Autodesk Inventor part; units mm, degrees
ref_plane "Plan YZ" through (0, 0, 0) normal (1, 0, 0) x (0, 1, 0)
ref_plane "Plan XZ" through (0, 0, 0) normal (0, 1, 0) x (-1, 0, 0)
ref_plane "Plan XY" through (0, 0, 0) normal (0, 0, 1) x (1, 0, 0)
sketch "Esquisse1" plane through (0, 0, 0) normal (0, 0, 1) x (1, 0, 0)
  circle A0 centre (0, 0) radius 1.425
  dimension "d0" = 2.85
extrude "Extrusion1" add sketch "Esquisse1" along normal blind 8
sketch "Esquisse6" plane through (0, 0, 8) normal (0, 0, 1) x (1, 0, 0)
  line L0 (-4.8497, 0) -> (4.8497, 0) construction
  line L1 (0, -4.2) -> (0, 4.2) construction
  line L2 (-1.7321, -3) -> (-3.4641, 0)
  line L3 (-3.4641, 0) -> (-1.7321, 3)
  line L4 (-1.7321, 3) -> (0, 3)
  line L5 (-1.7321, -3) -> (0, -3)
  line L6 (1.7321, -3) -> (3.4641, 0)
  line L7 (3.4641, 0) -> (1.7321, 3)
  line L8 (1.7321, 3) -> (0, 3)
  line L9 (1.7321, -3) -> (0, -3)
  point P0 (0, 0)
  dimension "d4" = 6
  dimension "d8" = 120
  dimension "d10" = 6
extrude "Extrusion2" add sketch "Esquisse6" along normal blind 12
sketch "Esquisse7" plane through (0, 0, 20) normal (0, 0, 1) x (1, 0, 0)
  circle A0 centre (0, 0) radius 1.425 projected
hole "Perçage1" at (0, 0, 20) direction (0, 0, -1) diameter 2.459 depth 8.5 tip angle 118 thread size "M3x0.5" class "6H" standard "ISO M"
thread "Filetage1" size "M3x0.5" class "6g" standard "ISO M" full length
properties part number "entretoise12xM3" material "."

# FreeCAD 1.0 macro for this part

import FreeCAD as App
import Part
import Sketcher
from FreeCAD import Vector
Q = App.Units.Quantity

doc = App.newDocument("Part")
body = doc.addObject("PartDesign::Body", "Body")

sketch1 = body.newObject("Sketcher::SketchObject", "Sketch")
sketch1.AttachmentSupport = (doc.getObject("XY_Plane"), [""])
sketch1.MapMode = "FlatFace"
sketch1.addGeometry(Part.Circle(Vector(0, 0, 0), Vector(0, 0, 1), 1.4), False)
sketch1.addConstraint([
    Sketcher.Constraint("Coincident", 0, 3, -1, 1),
    Sketcher.Constraint("Diameter", 0, 2.85),
])
pad1 = body.newObject("PartDesign::Pad", "Pad")
pad1.Profile = sketch1
pad1.Length = 8

sketch2 = body.newObject("Sketcher::SketchObject", "Sketch001")
sketch2.AttachmentSupport = (doc.getObject("XY_Plane"), [""])
sketch2.MapMode = "FlatFace"
sketch2.AttachmentOffset = App.Placement(Vector(0, 0, 8), App.Rotation())
sketch2.addGeometry([
    Part.LineSegment(Vector(-3.5, 0, 0), Vector(-1.7, -3, 0)),
    Part.LineSegment(Vector(-1.7, -3, 0), Vector(1.7, -3, 0)),
    Part.LineSegment(Vector(1.7, -3, 0), Vector(3.5, 0, 0)),
    Part.LineSegment(Vector(3.5, 0, 0), Vector(1.7, 3, 0)),
    Part.LineSegment(Vector(1.7, 3, 0), Vector(-1.7, 3, 0)),
    Part.LineSegment(Vector(-1.7, 3, 0), Vector(-3.5, 0, 0)),
], False)
sketch2.addConstraint([
    Sketcher.Constraint("Coincident", 0, 2, 1, 1),
    Sketcher.Constraint("Coincident", 1, 2, 2, 1),
    Sketcher.Constraint("Coincident", 2, 2, 3, 1),
    Sketcher.Constraint("Coincident", 3, 2, 4, 1),
    Sketcher.Constraint("Coincident", 4, 2, 5, 1),
    Sketcher.Constraint("Coincident", 5, 2, 0, 1),
    Sketcher.Constraint("Horizontal", 1),
    Sketcher.Constraint("Horizontal", 4),
    Sketcher.Constraint("Symmetric", 0, 2, 3, 2, -1, 1),
    Sketcher.Constraint("Symmetric", 2, 2, 5, 2, -1, 1),
    Sketcher.Constraint("PointOnObject", 2, 2, -1),
    Sketcher.Constraint("Parallel", 2, 5),
    Sketcher.Constraint("Vertical", 1, 2, 3, 2),
    Sketcher.Constraint("DistanceY", 1, 2, 3, 2, 6.0),
    Sketcher.Constraint("Angle", 0, Q("-60.0007 deg")),
    Sketcher.Constraint("DistanceX", 1, 1, 1, 2, 3.4642),
])
pad2 = body.newObject("PartDesign::Pad", "Pad001")
pad2.Profile = sketch2
pad2.Length = 12

sketch3 = body.newObject("Sketcher::SketchObject", "Sketch002")
sketch3.AttachmentSupport = (doc.getObject("XY_Plane"), [""])
sketch3.MapMode = "FlatFace"
sketch3.AttachmentOffset = App.Placement(Vector(0, 0, 20), App.Rotation())
sketch3.addGeometry(Part.Circle(Vector(0, 0, 0), Vector(0, 0, 1), 1.2), False)
sketch3.addConstraint([
    Sketcher.Constraint("Coincident", 0, 3, -1, 1),
    Sketcher.Constraint("Diameter", 0, 2.459),
])
doc.recompute()
hole = body.newObject("PartDesign::Hole", "Hole")
hole.Profile = sketch3
hole.ThreadType = "None"
hole.Diameter = 2.459
hole.DepthType = "Dimension"
hole.Depth = 8.5
hole.DrillPoint = "Angled"
hole.DrillPointAngle = 118

doc.recompute()
